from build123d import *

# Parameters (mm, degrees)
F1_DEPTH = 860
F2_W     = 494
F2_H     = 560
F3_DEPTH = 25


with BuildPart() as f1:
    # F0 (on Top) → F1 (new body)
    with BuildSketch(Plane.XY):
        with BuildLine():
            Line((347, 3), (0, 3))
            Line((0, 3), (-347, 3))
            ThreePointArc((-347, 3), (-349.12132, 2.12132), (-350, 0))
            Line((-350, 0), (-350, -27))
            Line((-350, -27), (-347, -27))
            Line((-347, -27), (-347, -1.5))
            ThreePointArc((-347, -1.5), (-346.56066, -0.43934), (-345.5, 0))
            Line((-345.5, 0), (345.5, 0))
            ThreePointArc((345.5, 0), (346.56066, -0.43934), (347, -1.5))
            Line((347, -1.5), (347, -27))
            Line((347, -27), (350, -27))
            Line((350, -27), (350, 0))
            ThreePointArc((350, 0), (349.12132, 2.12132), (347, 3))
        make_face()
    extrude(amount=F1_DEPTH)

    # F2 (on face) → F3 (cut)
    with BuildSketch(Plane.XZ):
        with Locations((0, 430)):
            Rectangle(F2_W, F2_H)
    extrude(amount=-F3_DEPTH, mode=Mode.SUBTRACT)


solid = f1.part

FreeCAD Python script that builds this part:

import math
import FreeCAD as App
import Part
import Sketcher

V = App.Vector

doc = App.newDocument("Part")
body = doc.addObject("PartDesign::Body", "Body")

# Sketch on XY plane
sketch1 = body.newObject("Sketcher::SketchObject", "Sketch")
sketch1.AttachmentSupport = (doc.getObject("XY_Plane"), [""])
sketch1.MapMode = "FlatFace"
sketch1.addGeometry([
    Part.LineSegment(V(347, 3, 0), V(-347, 3, 0)),  # 0
    Part.ArcOfCircle(Part.Circle(V(-346.999999, -0.000001, 0), V(0, 0, 1), 3.000001), math.radians(90.000022), math.radians(179.999978)),  # 1
    Part.LineSegment(V(-350, 0, 0), V(-350, -27, 0)),  # 2
    Part.LineSegment(V(-350, -27, 0), V(-347, -27, 0)),  # 3
    Part.LineSegment(V(-347, -27, 0), V(-347, -1.5, 0)),  # 4
    Part.ArcOfCircle(Part.Circle(V(-345.499999, -1.500001, 0), V(0, 0, 1), 1.500001), math.radians(90.000022), math.radians(179.999978)),  # 5
    Part.LineSegment(V(-345.5, 0, 0), V(345.5, 0, 0)),  # 6
    Part.ArcOfCircle(Part.Circle(V(345.499999, -1.500001, 0), V(0, 0, 1), 1.500001), math.radians(0.000022), math.radians(89.999978)),  # 7
    Part.LineSegment(V(347, -1.5, 0), V(347, -27, 0)),  # 8
    Part.LineSegment(V(347, -27, 0), V(350, -27, 0)),  # 9
    Part.LineSegment(V(350, -27, 0), V(350, 0, 0)),  # 10
    Part.ArcOfCircle(Part.Circle(V(346.999999, -0.000001, 0), V(0, 0, 1), 3.000001), math.radians(0.000022), math.radians(89.999978)),  # 11
], False)
sketch1.addConstraint([
    Sketcher.Constraint("Tangent", 0, 2, 1, 1),
    Sketcher.Constraint("Tangent", 1, 2, 2, 1),
    Sketcher.Constraint("Coincident", 2, 2, 3, 1),
    Sketcher.Constraint("Coincident", 3, 2, 4, 1),
    Sketcher.Constraint("Tangent", 4, 2, 5, 2),
    Sketcher.Constraint("Tangent", 5, 1, 6, 1),
    Sketcher.Constraint("Tangent", 6, 2, 7, 2),
    Sketcher.Constraint("Tangent", 7, 1, 8, 1),
    Sketcher.Constraint("Coincident", 8, 2, 9, 1),
    Sketcher.Constraint("Coincident", 9, 2, 10, 1),
    Sketcher.Constraint("Tangent", 10, 2, 11, 1),
    Sketcher.Constraint("Tangent", 11, 2, 0, 1),
    Sketcher.Constraint("Horizontal", 0),
    Sketcher.Constraint("Vertical", 2),
    Sketcher.Constraint("Horizontal", 3),
    Sketcher.Constraint("Vertical", 4),
    Sketcher.Constraint("Horizontal", 6),
    Sketcher.Constraint("Vertical", 8),
    Sketcher.Constraint("Horizontal", 9),
    Sketcher.Constraint("Vertical", 10),
    Sketcher.Constraint("Equal", 5, 7),
    Sketcher.Constraint("Equal", 1, 11),
    Sketcher.Constraint("Symmetric", 1, 3, 11, 3, -1, 1),
    Sketcher.Constraint("Symmetric", 5, 1, 6, 2, -1, 1),
    Sketcher.Constraint("Horizontal", 3, 2, 8, 2),
    Sketcher.Constraint("Vertical", 0, 2, 3, 2),
    Sketcher.Constraint("Radius", 1, 3.000001),
    Sketcher.Constraint("Radius", 5, 1.500001),
    Sketcher.Constraint("DistanceX", 0, 2, 0, 1, 694.0),
    Sketcher.Constraint("DistanceY", 2, 2, 2, 1, 27.0),
])
pad1 = body.newObject("PartDesign::Pad", "Pad")
pad1.Profile = sketch1
pad1.Length = 860

# Sketch on XZ plane
sketch2 = body.newObject("Sketcher::SketchObject", "Sketch001")
sketch2.AttachmentSupport = (doc.getObject("XZ_Plane"), [""])
sketch2.MapMode = "FlatFace"
sketch2.addGeometry([
    Part.LineSegment(V(-247, 710, 0), V(-247, 150, 0)),
    Part.LineSegment(V(-247, 150, 0), V(247, 150, 0)),
    Part.LineSegment(V(247, 150, 0), V(247, 710, 0)),
    Part.LineSegment(V(247, 710, 0), V(-247, 710, 0)),
], False)
sketch2.addConstraint([
    Sketcher.Constraint("Coincident", 0, 2, 1, 1),
    Sketcher.Constraint("Coincident", 1, 2, 2, 1),
    Sketcher.Constraint("Coincident", 2, 2, 3, 1),
    Sketcher.Constraint("Coincident", 3, 2, 0, 1),
    Sketcher.Constraint("Vertical", 0),
    Sketcher.Constraint("Horizontal", 1),
    Sketcher.Constraint("Vertical", 2),
    Sketcher.Constraint("Horizontal", 3),
    Sketcher.Constraint("DistanceX", 1, 1, 1, 2, 494.0),
    Sketcher.Constraint("DistanceY", 0, 2, 0, 1, 560.0),
    Sketcher.Constraint("DistanceX", 0, 2, -1, 1, 247.0),
    Sketcher.Constraint("DistanceY", -1, 1, 0, 2, 150.0),
])
pocket1 = body.newObject("PartDesign::Pocket", "Pocket")
pocket1.Profile = sketch2
pocket1.Length = 25

doc.recompute()
